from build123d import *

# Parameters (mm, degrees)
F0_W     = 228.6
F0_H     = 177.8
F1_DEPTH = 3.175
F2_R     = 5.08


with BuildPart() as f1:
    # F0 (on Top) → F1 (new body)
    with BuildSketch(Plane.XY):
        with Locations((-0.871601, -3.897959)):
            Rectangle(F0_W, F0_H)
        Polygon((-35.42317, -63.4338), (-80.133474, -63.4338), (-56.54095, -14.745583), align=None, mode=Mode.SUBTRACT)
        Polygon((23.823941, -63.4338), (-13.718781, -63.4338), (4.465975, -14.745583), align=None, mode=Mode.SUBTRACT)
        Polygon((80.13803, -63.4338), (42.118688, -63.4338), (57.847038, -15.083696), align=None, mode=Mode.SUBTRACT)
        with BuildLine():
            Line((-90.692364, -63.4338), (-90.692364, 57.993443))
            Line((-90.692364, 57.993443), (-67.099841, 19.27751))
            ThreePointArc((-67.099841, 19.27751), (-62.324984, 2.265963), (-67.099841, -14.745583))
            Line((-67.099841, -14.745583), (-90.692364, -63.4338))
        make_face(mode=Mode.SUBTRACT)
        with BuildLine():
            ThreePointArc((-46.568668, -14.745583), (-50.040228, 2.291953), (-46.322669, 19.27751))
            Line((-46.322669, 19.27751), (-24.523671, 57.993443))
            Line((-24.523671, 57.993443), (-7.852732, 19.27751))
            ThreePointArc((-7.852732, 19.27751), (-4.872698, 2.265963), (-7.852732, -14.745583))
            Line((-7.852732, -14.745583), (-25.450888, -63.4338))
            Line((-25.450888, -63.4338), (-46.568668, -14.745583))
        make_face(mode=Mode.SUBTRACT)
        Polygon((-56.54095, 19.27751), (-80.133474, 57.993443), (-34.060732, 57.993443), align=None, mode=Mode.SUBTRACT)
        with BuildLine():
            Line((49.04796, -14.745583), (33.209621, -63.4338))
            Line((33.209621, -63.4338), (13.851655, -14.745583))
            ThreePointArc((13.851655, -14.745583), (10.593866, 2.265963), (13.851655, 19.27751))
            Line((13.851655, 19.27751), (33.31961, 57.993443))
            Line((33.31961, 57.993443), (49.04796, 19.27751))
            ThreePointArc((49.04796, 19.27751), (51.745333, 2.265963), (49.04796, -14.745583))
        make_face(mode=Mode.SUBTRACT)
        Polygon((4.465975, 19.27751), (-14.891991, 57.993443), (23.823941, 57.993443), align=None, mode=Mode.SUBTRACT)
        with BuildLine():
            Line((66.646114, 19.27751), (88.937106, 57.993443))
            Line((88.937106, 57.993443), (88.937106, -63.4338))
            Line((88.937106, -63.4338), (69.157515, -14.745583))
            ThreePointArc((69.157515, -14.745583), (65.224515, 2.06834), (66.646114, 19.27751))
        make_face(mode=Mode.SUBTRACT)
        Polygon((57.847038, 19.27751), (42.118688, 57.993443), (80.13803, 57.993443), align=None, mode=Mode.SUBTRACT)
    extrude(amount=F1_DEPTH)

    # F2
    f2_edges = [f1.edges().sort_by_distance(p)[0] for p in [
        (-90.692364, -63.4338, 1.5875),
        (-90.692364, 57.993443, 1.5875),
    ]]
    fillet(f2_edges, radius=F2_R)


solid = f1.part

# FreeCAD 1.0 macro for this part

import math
import FreeCAD as App
import Part
import Sketcher

V = App.Vector
Q = App.Units.Quantity


def edges_at(feature, points):
    """Names of the edges that pass closest to the given points."""
    edges = feature.Shape.Edges
    near = lambda p: min(range(len(edges)), key=lambda i: edges[i].distToShape(Part.Vertex(*p))[0])
    return sorted({f"Edge{near(p) + 1}" for p in points})

doc = App.newDocument("Part")
body = doc.addObject("PartDesign::Body", "Body")

sketch1 = doc.addObject("Sketcher::SketchObject", "Sketch")
body.addObject(sketch1)
sketch1.AttachmentSupport = (doc.XY_Plane, [""])
sketch1.MapMode = "FlatFace"
sketch1.addGeometry([
    Part.LineSegment(V(-115, 85, 0), V(-115, -93, 0)),
    Part.LineSegment(V(-115, -93, 0), V(113, -93, 0)),
    Part.LineSegment(V(113, -93, 0), V(113, 85, 0)),
    Part.LineSegment(V(113, 85, 0), V(-115, 85, 0)),
    Part.LineSegment(V(-57, -15, 0), V(-35, -63, 0)),
    Part.LineSegment(V(-35, -63, 0), V(-80, -63, 0)),
    Part.LineSegment(V(-80, -63, 0), V(-57, -15, 0)),
    Part.LineSegment(V(4, -15, 0), V(24, -63, 0)),
    Part.LineSegment(V(24, -63, 0), V(-14, -63, 0)),
    Part.LineSegment(V(-14, -63, 0), V(4, -15, 0)),
    Part.LineSegment(V(58, -15, 0), V(80, -63, 0)),
    Part.LineSegment(V(80, -63, 0), V(42, -63, 0)),
    Part.LineSegment(V(42, -63, 0), V(58, -15, 0)),
    Part.ArcOfCircle(Part.Circle(V(121, 6, 0), V(0, 0, 1), 56), math.radians(166), math.radians(202)),
    Part.LineSegment(V(67, 19, 0), V(89, 58, 0)),
    Part.LineSegment(V(89, 58, 0), V(89, -63, 0)),
    Part.LineSegment(V(89, -63, 0), V(69, -15, 0)),
    Part.LineSegment(V(-67, -15, 0), V(-91, -63, 0)),
    Part.LineSegment(V(-91, -63, 0), V(-91, 58, 0)),
    Part.LineSegment(V(-91, 58, 0), V(-67, 19, 0)),
    Part.ArcOfCircle(Part.Circle(V(-95, 2, 0), V(0, 0, 1), 33), math.radians(-31), math.radians(31)),
    Part.LineSegment(V(-25, -63, 0), V(-47, -15, 0)),
    Part.ArcOfCircle(Part.Circle(V(-8, 2, 0), V(0, 0, 1), 42), math.radians(156), math.radians(203)),
    Part.LineSegment(V(-46, 19, 0), V(-25, 58, 0)),
    Part.LineSegment(V(-25, 58, 0), V(-8, 19, 0)),
    Part.ArcOfCircle(Part.Circle(V(-55, 2, 0), V(0, 0, 1), 50), math.radians(-20), math.radians(20)),
    Part.LineSegment(V(-8, -15, 0), V(-25, -63, 0)),
    Part.LineSegment(V(-34, 58, 0), V(-57, 19, 0)),
    Part.LineSegment(V(-57, 19, 0), V(-80, 58, 0)),
    Part.LineSegment(V(-80, 58, 0), V(-34, 58, 0)),
    Part.ArcOfCircle(Part.Circle(V(-3, 2, 0), V(0, 0, 1), 55), math.radians(-18), math.radians(18)),
    Part.LineSegment(V(49, -15, 0), V(33, -63, 0)),
    Part.LineSegment(V(33, -63, 0), V(14, -15, 0)),
    Part.ArcOfCircle(Part.Circle(V(57, 2, 0), V(0, 0, 1), 46), math.radians(158), math.radians(202)),
    Part.LineSegment(V(14, 19, 0), V(33, 58, 0)),
    Part.LineSegment(V(33, 58, 0), V(49, 19, 0)),
    Part.LineSegment(V(24, 58, 0), V(4, 19, 0)),
    Part.LineSegment(V(4, 19, 0), V(-15, 58, 0)),
    Part.LineSegment(V(-15, 58, 0), V(24, 58, 0)),
    Part.LineSegment(V(80, 58, 0), V(58, 19, 0)),
    Part.LineSegment(V(58, 19, 0), V(42, 58, 0)),
    Part.LineSegment(V(42, 58, 0), V(80, 58, 0)),
], False)
sketch1.addConstraint([
    Sketcher.Constraint("Coincident", 0, 2, 1, 1),
    Sketcher.Constraint("Coincident", 1, 2, 2, 1),
    Sketcher.Constraint("Coincident", 2, 2, 3, 1),
    Sketcher.Constraint("Coincident", 3, 2, 0, 1),
    Sketcher.Constraint("Coincident", 4, 2, 5, 1),
    Sketcher.Constraint("Coincident", 5, 2, 6, 1),
    Sketcher.Constraint("Coincident", 6, 2, 4, 1),
    Sketcher.Constraint("Coincident", 7, 2, 8, 1),
    Sketcher.Constraint("Coincident", 8, 2, 9, 1),
    Sketcher.Constraint("Coincident", 9, 2, 7, 1),
    Sketcher.Constraint("Coincident", 10, 2, 11, 1),
    Sketcher.Constraint("Coincident", 11, 2, 12, 1),
    Sketcher.Constraint("Coincident", 12, 2, 10, 1),
    Sketcher.Constraint("Coincident", 13, 1, 14, 1),
    Sketcher.Constraint("Coincident", 14, 2, 15, 1),
    Sketcher.Constraint("Coincident", 15, 2, 16, 1),
    Sketcher.Constraint("Tangent", 16, 2, 13, 2),
    Sketcher.Constraint("Coincident", 17, 2, 18, 1),
    Sketcher.Constraint("Coincident", 18, 2, 19, 1),
    Sketcher.Constraint("Tangent", 19, 2, 20, 2),
    Sketcher.Constraint("Coincident", 20, 1, 17, 1),
    Sketcher.Constraint("Tangent", 21, 2, 22, 2),
    Sketcher.Constraint("Coincident", 22, 1, 23, 1),
    Sketcher.Constraint("Coincident", 23, 2, 24, 1),
    Sketcher.Constraint("Coincident", 24, 2, 25, 2),
    Sketcher.Constraint("Tangent", 25, 1, 26, 1),
    Sketcher.Constraint("Coincident", 26, 2, 21, 1),
    Sketcher.Constraint("Coincident", 27, 2, 28, 1),
    Sketcher.Constraint("Coincident", 28, 2, 29, 1),
    Sketcher.Constraint("Coincident", 29, 2, 27, 1),
    Sketcher.Constraint("Tangent", 30, 1, 31, 1),
    Sketcher.Constraint("Coincident", 31, 2, 32, 1),
    Sketcher.Constraint("Tangent", 32, 2, 33, 2),
    Sketcher.Constraint("Coincident", 33, 1, 34, 1),
    Sketcher.Constraint("Coincident", 34, 2, 35, 1),
    Sketcher.Constraint("Coincident", 35, 2, 30, 2),
    Sketcher.Constraint("Coincident", 36, 2, 37, 1),
    Sketcher.Constraint("Coincident", 37, 2, 38, 1),
    Sketcher.Constraint("Coincident", 38, 2, 36, 1),
    Sketcher.Constraint("Coincident", 39, 2, 40, 1),
    Sketcher.Constraint("Coincident", 40, 2, 41, 1),
    Sketcher.Constraint("Coincident", 41, 2, 39, 1),
    Sketcher.Constraint("Vertical", 0),
    Sketcher.Constraint("Horizontal", 1),
    Sketcher.Constraint("Vertical", 2),
    Sketcher.Constraint("Horizontal", 3),
    Sketcher.Constraint("Horizontal", 5),
    Sketcher.Constraint("Horizontal", 8),
    Sketcher.Constraint("Horizontal", 11),
    Sketcher.Constraint("Vertical", 15),
    Sketcher.Constraint("Vertical", 18),
    Sketcher.Constraint("Horizontal", 29),
    Sketcher.Constraint("Horizontal", 38),
    Sketcher.Constraint("Horizontal", 41),
    Sketcher.Constraint("Parallel", 6, 17),
    Sketcher.Constraint("Parallel", 4, 21),
    Sketcher.Constraint("Parallel", 19, 28),
    Sketcher.Constraint("Parallel", 12, 31),
    Sketcher.Constraint("Parallel", 7, 32),
    Sketcher.Constraint("Parallel", 16, 35),
    Sketcher.Constraint("Parallel", 14, 39),
    Sketcher.Constraint("Parallel", 35, 40),
    Sketcher.Constraint("Horizontal", 20, 3, 25, 3),
    Sketcher.Constraint("Horizontal", 25, 3, 30, 3),
    Sketcher.Constraint("Horizontal", 30, 3, 33, 3),
    Sketcher.Constraint("Horizontal", 5, 2, 7, 2),
    Sketcher.Constraint("Horizontal", 6, 2, 9, 2),
    Sketcher.Constraint("Horizontal", 8, 2, 10, 2),
    Sketcher.Constraint("Horizontal", 11, 2, 15, 2),
    Sketcher.Constraint("Horizontal", 9, 2, 16, 2),
    Sketcher.Constraint("Horizontal", 15, 2, 17, 2),
    Sketcher.Constraint("Horizontal", 14, 2, 18, 2),
    Sketcher.Constraint("Horizontal", 13, 1, 19, 2),
    Sketcher.Constraint("Horizontal", 16, 2, 20, 1),
    Sketcher.Constraint("Horizontal", 20, 1, 21, 2),
    Sketcher.Constraint("Horizontal", 19, 2, 22, 1),
    Sketcher.Constraint("Horizontal", 18, 2, 23, 2),
    Sketcher.Constraint("Horizontal", 22, 1, 24, 2),
    Sketcher.Constraint("Horizontal", 21, 2, 25, 1),
    Sketcher.Constraint("Horizontal", 17, 2, 26, 2),
    Sketcher.Constraint("Horizontal", 24, 2, 27, 2),
    Sketcher.Constraint("Horizontal", 23, 2, 28, 2),
    Sketcher.Constraint("Horizontal", 25, 1, 30, 1),
    Sketcher.Constraint("Horizontal", 26, 2, 31, 2),
    Sketcher.Constraint("Horizontal", 30, 1, 32, 2),
    Sketcher.Constraint("Horizontal", 27, 2, 33, 1),
    Sketcher.Constraint("Horizontal", 29, 2, 34, 2),
    Sketcher.Constraint("Horizontal", 33, 1, 35, 2),
    Sketcher.Constraint("Horizontal", 35, 2, 36, 2),
    Sketcher.Constraint("Horizontal", 34, 2, 37, 2),
    Sketcher.Constraint("Horizontal", 36, 2, 39, 2),
    Sketcher.Constraint("Horizontal", 38, 2, 40, 2),
    Sketcher.Constraint("Vertical", 19, 2, 20, 1),
    Sketcher.Constraint("Vertical", 6, 2, 27, 2),
    Sketcher.Constraint("Vertical", 9, 2, 36, 2),
    Sketcher.Constraint("Vertical", 7, 2, 38, 2),
    Sketcher.Constraint("Vertical", 12, 2, 39, 2),
    Sketcher.Constraint("Vertical", 11, 2, 40, 2),
    Sketcher.Constraint("Vertical", 10, 2, 41, 2),
    Sketcher.Constraint("Equal", 36, 37),
    Sketcher.Constraint("DistanceX", 1, 1, 1, 2, Q("9 in")),
    Sketcher.Constraint("DistanceY", 0, 2, 0, 1, Q("7 in")),
    Sketcher.Constraint("DistanceY", 15, 2, 15, 1, Q("4.7806001 in")),
    Sketcher.Constraint("Radius", 20, Q("32.691238 mm")),
    Sketcher.Constraint("Radius", 13, Q("55.534966 mm")),
    Sketcher.Constraint("Radius", 22, Q("42.052646 mm")),
    Sketcher.Constraint("Radius", 25, Q("50.045288 mm")),
    Sketcher.Constraint("Radius", 30, Q("54.992123 mm")),
    Sketcher.Constraint("Radius", 33, Q("46.044404 mm")),
    Sketcher.Constraint("DistanceX", 0, 2, 22, 3, Q("4.2198 in")),
    Sketcher.Constraint("DistanceX", 23, 2, 37, 2, Q("0.3792 in")),
    Sketcher.Constraint("DistanceX", 8, 2, 8, 1, Q("37.542722 mm")),
    Sketcher.Constraint("DistanceX", 0, 2, -1, 1, Q("115.171601 mm")),
    Sketcher.Constraint("DistanceY", 4, 2, -1, 1, Q("63.4338 mm")),
    Sketcher.Constraint("DistanceX", 8, 2, 22, 3, Q("5.7301 mm")),
    Sketcher.Constraint("DistanceY", 13, 3, 13, 1, Q("13.121001 mm")),
    Sketcher.Constraint("DistanceY", 14, 2, 2, 2, Q("27.008598 mm")),
    Sketcher.Constraint("DistanceX", 13, 1, 16, 2, Q("2.511401 mm")),
    Sketcher.Constraint("DistanceX", 21, 2, 22, 1, Q("0.245999 mm")),
    Sketcher.Constraint("DistanceX", 22, 1, 23, 2, Q("21.798998 mm")),
    Sketcher.Constraint("DistanceX", 29, 2, 24, 2, Q("26.208 mm")),
    Sketcher.Constraint("DistanceX", 8, 2, 31, 2, Q("46.928402 mm")),
    Sketcher.Constraint("DistanceX", 29, 1, 29, 2, Q("46.072742 mm")),
    Sketcher.Constraint("DistanceX", -1, 1, 10, 2, Q("80.13803 mm")),
    Sketcher.Constraint("DistanceX", 19, 2, -1, 1, Q("67.099841 mm")),
    Sketcher.Constraint("DistanceX", 9, 2, 13, 1, Q("62.180139 mm")),
])
pad1 = doc.addObject("PartDesign::Pad", "Pad")
body.addObject(pad1)
pad1.Profile = sketch1
pad1.Length = Q("0.125 in")
doc.recompute()

fillet = doc.addObject("PartDesign::Fillet", "Fillet")
body.addObject(fillet)
fillet.Base = (pad1, edges_at(pad1, [(-90.692, -63.434, 1.587), (-90.692, 57.993, 1.587)]))
fillet.Radius = Q("0.2 in")

doc.recompute()
